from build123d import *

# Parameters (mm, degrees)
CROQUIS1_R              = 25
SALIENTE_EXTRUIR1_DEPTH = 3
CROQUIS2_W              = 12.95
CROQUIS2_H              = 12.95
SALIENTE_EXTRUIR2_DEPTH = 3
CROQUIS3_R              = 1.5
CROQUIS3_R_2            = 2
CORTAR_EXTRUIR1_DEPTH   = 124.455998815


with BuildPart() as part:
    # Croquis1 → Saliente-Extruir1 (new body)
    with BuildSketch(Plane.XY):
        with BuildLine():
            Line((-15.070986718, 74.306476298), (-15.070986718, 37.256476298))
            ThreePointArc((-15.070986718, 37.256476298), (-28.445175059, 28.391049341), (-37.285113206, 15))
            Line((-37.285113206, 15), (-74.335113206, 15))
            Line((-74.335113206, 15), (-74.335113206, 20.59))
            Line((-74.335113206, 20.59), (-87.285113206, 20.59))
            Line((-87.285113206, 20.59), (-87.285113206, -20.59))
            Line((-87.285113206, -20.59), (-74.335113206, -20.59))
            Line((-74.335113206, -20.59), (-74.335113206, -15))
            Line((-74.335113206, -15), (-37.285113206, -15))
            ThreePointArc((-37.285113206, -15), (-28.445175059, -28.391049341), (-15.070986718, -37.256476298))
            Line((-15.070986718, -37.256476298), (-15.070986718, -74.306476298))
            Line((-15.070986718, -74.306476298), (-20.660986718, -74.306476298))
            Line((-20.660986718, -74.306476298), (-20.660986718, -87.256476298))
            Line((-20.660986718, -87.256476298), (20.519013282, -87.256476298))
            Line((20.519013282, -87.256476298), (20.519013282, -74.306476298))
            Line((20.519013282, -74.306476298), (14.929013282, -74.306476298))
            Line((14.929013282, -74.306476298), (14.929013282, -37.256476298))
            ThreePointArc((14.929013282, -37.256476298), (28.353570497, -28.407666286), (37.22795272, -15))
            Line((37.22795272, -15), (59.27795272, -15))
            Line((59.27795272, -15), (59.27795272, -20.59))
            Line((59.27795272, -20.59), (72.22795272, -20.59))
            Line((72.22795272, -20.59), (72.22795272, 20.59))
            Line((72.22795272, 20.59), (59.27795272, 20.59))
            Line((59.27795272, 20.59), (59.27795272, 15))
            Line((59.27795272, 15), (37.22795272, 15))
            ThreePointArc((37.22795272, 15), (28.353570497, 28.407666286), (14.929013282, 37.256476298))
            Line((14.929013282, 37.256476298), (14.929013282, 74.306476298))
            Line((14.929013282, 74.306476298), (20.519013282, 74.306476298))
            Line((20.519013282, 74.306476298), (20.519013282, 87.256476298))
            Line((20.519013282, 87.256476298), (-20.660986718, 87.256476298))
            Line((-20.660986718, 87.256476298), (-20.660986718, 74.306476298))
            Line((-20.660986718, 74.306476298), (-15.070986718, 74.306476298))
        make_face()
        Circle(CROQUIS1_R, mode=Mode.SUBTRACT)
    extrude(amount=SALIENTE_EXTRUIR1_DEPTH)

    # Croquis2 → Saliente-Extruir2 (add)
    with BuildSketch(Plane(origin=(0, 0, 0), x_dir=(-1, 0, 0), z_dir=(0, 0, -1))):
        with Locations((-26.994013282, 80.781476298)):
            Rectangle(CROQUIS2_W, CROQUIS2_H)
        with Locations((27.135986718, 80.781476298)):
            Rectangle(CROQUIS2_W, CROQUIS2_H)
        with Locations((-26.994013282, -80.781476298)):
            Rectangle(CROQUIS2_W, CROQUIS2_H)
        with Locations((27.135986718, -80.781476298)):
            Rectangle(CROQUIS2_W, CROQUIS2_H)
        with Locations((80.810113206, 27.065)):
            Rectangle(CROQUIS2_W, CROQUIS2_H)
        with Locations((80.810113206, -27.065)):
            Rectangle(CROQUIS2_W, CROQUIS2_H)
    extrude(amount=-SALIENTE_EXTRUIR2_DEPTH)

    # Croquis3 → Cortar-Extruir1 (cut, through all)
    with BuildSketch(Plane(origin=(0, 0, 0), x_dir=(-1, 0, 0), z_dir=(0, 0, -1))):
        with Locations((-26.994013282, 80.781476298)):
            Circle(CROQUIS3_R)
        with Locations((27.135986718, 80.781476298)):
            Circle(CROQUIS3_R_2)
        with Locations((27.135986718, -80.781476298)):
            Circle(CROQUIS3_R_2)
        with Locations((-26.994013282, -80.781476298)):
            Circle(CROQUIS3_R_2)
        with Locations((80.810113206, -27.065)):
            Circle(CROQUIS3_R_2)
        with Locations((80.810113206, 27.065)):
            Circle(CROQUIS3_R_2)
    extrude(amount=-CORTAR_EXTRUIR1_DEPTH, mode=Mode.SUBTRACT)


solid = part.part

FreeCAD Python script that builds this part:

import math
import FreeCAD as App
import Part
import Sketcher
from FreeCAD import Vector


def add_polygon(sketch, points):
    """Adds a closed chain of lines whose ends are joined by coincident constraints."""
    first, n = sketch.GeometryCount, len(points)
    for a, b in zip(points, points[1:] + points[:1]):
        sketch.addGeometry(Part.LineSegment(App.Vector(*a, 0), App.Vector(*b, 0)), False)
    for i in range(n):
        sketch.addConstraint(Sketcher.Constraint("Coincident", first + i, 2, first + (i + 1) % n, 1))

doc = App.newDocument("Part")
params = doc.addObject("Spreadsheet::Sheet", "Params")
for row, (alias, value) in enumerate([
    ("sketch1_diameter", "50 mm"),
    ("sketch1_width", "37.05 mm"),
    ("sketch1_width2", "5.59 mm"),
    ("pad1_length", "3 mm"),
    ("sketch2_width", "12.95 mm"),
    ("pad2_length", "3 mm"),
    ("sketch3_diameter", "3 mm"),
    ("sketch3_diameter2", "4 mm"),
], start=1):
    params.set(f"A{row}", alias)
    params.set(f"B{row}", "=" + value)
    params.setAlias(f"B{row}", alias)

body = doc.addObject("PartDesign::Body", "Body")

# Sketch on XY plane
sketch1 = body.newObject("Sketcher::SketchObject", "Sketch")
sketch1.AttachmentSupport = (doc.getObject("XY_Plane"), [""])
sketch1.MapMode = "FlatFace"
sketch1.addGeometry([
    Part.LineSegment(Vector(-15, 74, 0), Vector(-15, 37, 0)),  # 0
    Part.ArcOfCircle(Part.Circle(Vector(0, 0, 0), Vector(0, 0, 1), 40), math.radians(112), math.radians(158)),  # 1
    Part.LineSegment(Vector(-37, 15, 0), Vector(-74, 15, 0)),  # 2
    Part.LineSegment(Vector(-74, 15, 0), Vector(-74, 21, 0)),  # 3
    Part.LineSegment(Vector(-74, 21, 0), Vector(-87, 21, 0)),  # 4
    Part.LineSegment(Vector(-87, 21, 0), Vector(-87, -21, 0)),  # 5
    Part.LineSegment(Vector(-87, -21, 0), Vector(-74, -21, 0)),  # 6
    Part.LineSegment(Vector(-74, -21, 0), Vector(-74, -15, 0)),  # 7
    Part.LineSegment(Vector(-74, -15, 0), Vector(-37, -15, 0)),  # 8
    Part.ArcOfCircle(Part.Circle(Vector(0, 0, 0), Vector(0, 0, 1), 40), math.radians(-158), math.radians(-112)),  # 9
    Part.LineSegment(Vector(-15, -37, 0), Vector(-15, -74, 0)),  # 10
    Part.LineSegment(Vector(-15, -74, 0), Vector(-21, -74, 0)),  # 11
    Part.LineSegment(Vector(-21, -74, 0), Vector(-21, -87, 0)),  # 12
    Part.LineSegment(Vector(-21, -87, 0), Vector(21, -87, 0)),  # 13
    Part.LineSegment(Vector(21, -87, 0), Vector(21, -74, 0)),  # 14
    Part.LineSegment(Vector(21, -74, 0), Vector(15, -74, 0)),  # 15
    Part.LineSegment(Vector(15, -74, 0), Vector(15, -37, 0)),  # 16
    Part.ArcOfCircle(Part.Circle(Vector(0, 0, 0), Vector(0, 0, 1), 40), math.radians(-68), math.radians(-22)),  # 17
    Part.LineSegment(Vector(37, -15, 0), Vector(59, -15, 0)),  # 18
    Part.LineSegment(Vector(59, -15, 0), Vector(59, -21, 0)),  # 19
    Part.LineSegment(Vector(59, -21, 0), Vector(72, -21, 0)),  # 20
    Part.LineSegment(Vector(72, -21, 0), Vector(72, 21, 0)),  # 21
    Part.LineSegment(Vector(72, 21, 0), Vector(59, 21, 0)),  # 22
    Part.LineSegment(Vector(59, 21, 0), Vector(59, 15, 0)),  # 23
    Part.LineSegment(Vector(59, 15, 0), Vector(37, 15, 0)),  # 24
    Part.ArcOfCircle(Part.Circle(Vector(0, 0, 0), Vector(0, 0, 1), 40), math.radians(22), math.radians(68)),  # 25
    Part.LineSegment(Vector(15, 37, 0), Vector(15, 74, 0)),  # 26
    Part.LineSegment(Vector(15, 74, 0), Vector(21, 74, 0)),  # 27
    Part.LineSegment(Vector(21, 74, 0), Vector(21, 87, 0)),  # 28
    Part.LineSegment(Vector(21, 87, 0), Vector(-21, 87, 0)),  # 29
    Part.LineSegment(Vector(-21, 87, 0), Vector(-21, 74, 0)),  # 30
    Part.LineSegment(Vector(-21, 74, 0), Vector(-15, 74, 0)),  # 31
    Part.Circle(Vector(0, 0, 0), Vector(0, 0, 1), 25),  # 32
], False)
sketch1.addConstraint([
    Sketcher.Constraint("Coincident", 0, 2, 1, 1),
    Sketcher.Constraint("Coincident", 1, 2, 2, 1),
    Sketcher.Constraint("Coincident", 2, 2, 3, 1),
    Sketcher.Constraint("Coincident", 3, 2, 4, 1),
    Sketcher.Constraint("Coincident", 4, 2, 5, 1),
    Sketcher.Constraint("Coincident", 5, 2, 6, 1),
    Sketcher.Constraint("Coincident", 6, 2, 7, 1),
    Sketcher.Constraint("Coincident", 7, 2, 8, 1),
    Sketcher.Constraint("Coincident", 8, 2, 9, 1),
    Sketcher.Constraint("Coincident", 9, 2, 10, 1),
    Sketcher.Constraint("Coincident", 10, 2, 11, 1),
    Sketcher.Constraint("Coincident", 11, 2, 12, 1),
    Sketcher.Constraint("Coincident", 12, 2, 13, 1),
    Sketcher.Constraint("Coincident", 13, 2, 14, 1),
    Sketcher.Constraint("Coincident", 14, 2, 15, 1),
    Sketcher.Constraint("Coincident", 15, 2, 16, 1),
    Sketcher.Constraint("Coincident", 16, 2, 17, 1),
    Sketcher.Constraint("Coincident", 17, 2, 18, 1),
    Sketcher.Constraint("Coincident", 18, 2, 19, 1),
    Sketcher.Constraint("Coincident", 19, 2, 20, 1),
    Sketcher.Constraint("Coincident", 20, 2, 21, 1),
    Sketcher.Constraint("Coincident", 21, 2, 22, 1),
    Sketcher.Constraint("Coincident", 22, 2, 23, 1),
    Sketcher.Constraint("Coincident", 23, 2, 24, 1),
    Sketcher.Constraint("Coincident", 24, 2, 25, 1),
    Sketcher.Constraint("Coincident", 25, 2, 26, 1),
    Sketcher.Constraint("Coincident", 26, 2, 27, 1),
    Sketcher.Constraint("Coincident", 27, 2, 28, 1),
    Sketcher.Constraint("Coincident", 28, 2, 29, 1),
    Sketcher.Constraint("Coincident", 29, 2, 30, 1),
    Sketcher.Constraint("Coincident", 30, 2, 31, 1),
    Sketcher.Constraint("Coincident", 31, 2, 0, 1),
    Sketcher.Constraint("Vertical", 0),
    Sketcher.Constraint("Horizontal", 2),
    Sketcher.Constraint("Vertical", 3),
    Sketcher.Constraint("Horizontal", 4),
    Sketcher.Constraint("Vertical", 5),
    Sketcher.Constraint("Horizontal", 6),
    Sketcher.Constraint("Vertical", 7),
    Sketcher.Constraint("Horizontal", 8),
    Sketcher.Constraint("Vertical", 10),
    Sketcher.Constraint("Horizontal", 11),
    Sketcher.Constraint("Vertical", 12),
    Sketcher.Constraint("Horizontal", 13),
    Sketcher.Constraint("Vertical", 14),
    Sketcher.Constraint("Horizontal", 15),
    Sketcher.Constraint("Vertical", 16),
    Sketcher.Constraint("Horizontal", 18),
    Sketcher.Constraint("Vertical", 19),
    Sketcher.Constraint("Horizontal", 20),
    Sketcher.Constraint("Vertical", 21),
    Sketcher.Constraint("Horizontal", 22),
    Sketcher.Constraint("Vertical", 23),
    Sketcher.Constraint("Horizontal", 24),
    Sketcher.Constraint("Vertical", 26),
    Sketcher.Constraint("Horizontal", 27),
    Sketcher.Constraint("Vertical", 28),
    Sketcher.Constraint("Horizontal", 29),
    Sketcher.Constraint("Vertical", 30),
    Sketcher.Constraint("Horizontal", 31),
    Sketcher.Constraint("Coincident", 1, 3, -1, 1),
    Sketcher.Constraint("Coincident", 9, 3, -1, 1),
    Sketcher.Constraint("Coincident", 17, 3, -1, 1),
    Sketcher.Constraint("Coincident", 25, 3, -1, 1),
    Sketcher.Constraint("Coincident", 32, 3, -1, 1),
    Sketcher.Constraint("Equal", 1, 9),
    Sketcher.Constraint("Equal", 17, 25),
    Sketcher.Constraint("Symmetric", 3, 2, 6, 2, -1),
    Sketcher.Constraint("Symmetric", 19, 2, 22, 2, -1),
    Sketcher.Constraint("Symmetric", 15, 2, 26, 2, -1),
    Sketcher.Constraint("Symmetric", 13, 2, 28, 2, -1),
    Sketcher.Constraint("Symmetric", 11, 2, 30, 2, -1),
    Sketcher.Constraint("Horizontal", 11, 2, 14, 2),
    Sketcher.Constraint("Horizontal", 9, 2, 16, 2),
    Sketcher.Constraint("Horizontal", 8, 2, 17, 2),
    Sketcher.Constraint("Horizontal", 6, 2, 19, 2),
    Sketcher.Constraint("Horizontal", 2, 2, 23, 2),
    Sketcher.Constraint("Horizontal", 0, 2, 25, 2),
    Sketcher.Constraint("Vertical", 1, 2, 8, 2),
    Sketcher.Constraint("Equal", 11, 15),
    Sketcher.Constraint("Equal", 6, 20),
    Sketcher.Constraint("Equal", 8, 0),
    Sketcher.Constraint("Equal", 31, 3),
    Sketcher.Constraint("Equal", 29, 5),
    Sketcher.Constraint("Equal", 22, 12),
    Sketcher.Constraint("Diameter", 32, 50.0),
    Sketcher.Constraint("DistanceY", -1, 1, 1, 2, 15.0),
    Sketcher.Constraint("DistanceX", 4, 2, 1, 2, 50.0),
    Sketcher.Constraint("DistanceX", 17, 2, 20, 2, 35.0),
    Sketcher.Constraint("DistanceX", 2, 2, 2, 1, 37.05),
    Sketcher.Constraint("DistanceX", 11, 2, 11, 1, 5.59),
    Sketcher.Constraint("Radius", 1, 40.189298),
    Sketcher.Constraint("Radius", 17, 40.136274),
])
sketch1.setExpression("Constraints[85]", "Params.sketch1_diameter")
sketch1.setExpression("Constraints[89]", "Params.sketch1_width")
sketch1.setExpression("Constraints[90]", "Params.sketch1_width2")
pad1 = body.newObject("PartDesign::Pad", "Pad")
pad1.Profile = sketch1
pad1.setExpression("Length", "Params.pad1_length")

# Sketch on XY plane
sketch2 = body.newObject("Sketcher::SketchObject", "Sketch001")
sketch2.AttachmentSupport = (doc.getObject("XY_Plane"), [""])
sketch2.MapMode = "FlatFace"
add_polygon(sketch2, [(33, 87), (33, 74), (21, 74), (21, 87)])  # lines 0-3
add_polygon(sketch2, [(-21, 87), (-21, 74), (-34, 74), (-34, 87)])  # lines 4-7
add_polygon(sketch2, [(33, -74), (33, -87), (21, -87), (21, -74)])  # lines 8-11
add_polygon(sketch2, [(-21, -74), (-21, -87), (-34, -87), (-34, -74)])  # lines 12-15
add_polygon(sketch2, [(-74, 34), (-74, 21), (-87, 21), (-87, 34)])  # lines 16-19
add_polygon(sketch2, [(-74, -21), (-74, -34), (-87, -34), (-87, -21)])  # lines 20-23
sketch2.addConstraint([
    Sketcher.Constraint("Vertical", 0),
    Sketcher.Constraint("Horizontal", 1),
    Sketcher.Constraint("Vertical", 2),
    Sketcher.Constraint("Horizontal", 3),
    Sketcher.Constraint("Vertical", 4),
    Sketcher.Constraint("Horizontal", 5),
    Sketcher.Constraint("Vertical", 6),
    Sketcher.Constraint("Horizontal", 7),
    Sketcher.Constraint("Vertical", 8),
    Sketcher.Constraint("Horizontal", 9),
    Sketcher.Constraint("Vertical", 10),
    Sketcher.Constraint("Horizontal", 11),
    Sketcher.Constraint("Vertical", 12),
    Sketcher.Constraint("Horizontal", 13),
    Sketcher.Constraint("Vertical", 14),
    Sketcher.Constraint("Horizontal", 15),
    Sketcher.Constraint("Vertical", 16),
    Sketcher.Constraint("Horizontal", 17),
    Sketcher.Constraint("Vertical", 18),
    Sketcher.Constraint("Horizontal", 19),
    Sketcher.Constraint("Vertical", 20),
    Sketcher.Constraint("Horizontal", 21),
    Sketcher.Constraint("Vertical", 22),
    Sketcher.Constraint("Horizontal", 23),
    Sketcher.Constraint("Symmetric", 3, 2, 8, 2, -1),
    Sketcher.Constraint("Symmetric", 1, 2, 10, 2, -1),
    Sketcher.Constraint("Symmetric", 7, 2, 12, 2, -1),
    Sketcher.Constraint("Symmetric", 5, 2, 14, 2, -1),
    Sketcher.Constraint("Symmetric", 19, 2, 20, 2, -1),
    Sketcher.Constraint("Symmetric", 17, 2, 22, 2, -1),
    Sketcher.Constraint("Horizontal", 1, 2, 4, 2),
    Sketcher.Constraint("Horizontal", 3, 2, 6, 2),
    Sketcher.Constraint("Equal", 3, 5),
    Sketcher.Constraint("Equal", 15, 17),
    Sketcher.Constraint("Equal", 23, 0),
    Sketcher.Constraint("Equal", 14, 16),
    Sketcher.Constraint("DistanceX", 1, 2, 1, 1, 12.95),
    Sketcher.Constraint("DistanceY", -1, 1, 16, 2, 20.59),
    Sketcher.Constraint("DistanceX", 4, 2, 1, 2, 41.18),
    Sketcher.Constraint("DistanceX", -1, 1, 0, 2, 33.469013),
    Sketcher.Constraint("DistanceY", -1, 1, 0, 2, 74.306476),
    Sketcher.Constraint("DistanceX", 16, 2, -1, 1, 74.335113),
])
sketch2.setExpression("Constraints[60]", "Params.sketch2_width")
pad2 = body.newObject("PartDesign::Pad", "Pad001")
pad2.Profile = sketch2
pad2.setExpression("Length", "Params.pad2_length")

# Sketch on XY plane
sketch3 = body.newObject("Sketcher::SketchObject", "Sketch002")
sketch3.AttachmentSupport = (doc.getObject("XY_Plane"), [""])
sketch3.MapMode = "FlatFace"
sketch3.addGeometry([
    Part.Circle(Vector(27, 80.8, 0), Vector(0, 0, 1), 1.5),  # 0
    Part.Circle(Vector(-27.1, 80.8, 0), Vector(0, 0, 1), 2),  # 1
    Part.Circle(Vector(-27.1, -80.8, 0), Vector(0, 0, 1), 2),  # 2
    Part.Circle(Vector(27, -80.8, 0), Vector(0, 0, 1), 2),  # 3
    Part.Circle(Vector(-80.8, -27.1, 0), Vector(0, 0, 1), 2),  # 4
    Part.Circle(Vector(-80.8, 27.1, 0), Vector(0, 0, 1), 2),  # 5
], False)
sketch3.addConstraint([
    Sketcher.Constraint("Equal", 1, 2),
    Sketcher.Constraint("Equal", 2, 3),
    Sketcher.Constraint("Equal", 3, 4),
    Sketcher.Constraint("Equal", 4, 5),
    Sketcher.Constraint("Symmetric", 1, 3, 2, 3, -1),
    Sketcher.Constraint("Symmetric", 0, 3, 3, 3, -1),
    Sketcher.Constraint("Symmetric", 4, 3, 5, 3, -1),
    Sketcher.Constraint("Horizontal", 0, 3, 1, 3),
    Sketcher.Constraint("Diameter", 0, 3.0),
    Sketcher.Constraint("Diameter", 1, 4.0),
    Sketcher.Constraint("DistanceX", 1, 3, 0, 3, 54.13),
    Sketcher.Constraint("DistanceY", 4, 3, 5, 3, 54.13),
    Sketcher.Constraint("DistanceX", -1, 1, 0, 3, 26.994013),
    Sketcher.Constraint("DistanceY", -1, 1, 0, 3, 80.781476),
    Sketcher.Constraint("DistanceX", 4, 3, -1, 1, 80.810113),
])
sketch3.setExpression("Constraints[8]", "Params.sketch3_diameter")
sketch3.setExpression("Constraints[9]", "Params.sketch3_diameter2")
pocket1 = body.newObject("PartDesign::Pocket", "Pocket")
pocket1.Profile = sketch3
pocket1.Type = "ThroughAll"
pocket1.Reversed = True

doc.recompute()
